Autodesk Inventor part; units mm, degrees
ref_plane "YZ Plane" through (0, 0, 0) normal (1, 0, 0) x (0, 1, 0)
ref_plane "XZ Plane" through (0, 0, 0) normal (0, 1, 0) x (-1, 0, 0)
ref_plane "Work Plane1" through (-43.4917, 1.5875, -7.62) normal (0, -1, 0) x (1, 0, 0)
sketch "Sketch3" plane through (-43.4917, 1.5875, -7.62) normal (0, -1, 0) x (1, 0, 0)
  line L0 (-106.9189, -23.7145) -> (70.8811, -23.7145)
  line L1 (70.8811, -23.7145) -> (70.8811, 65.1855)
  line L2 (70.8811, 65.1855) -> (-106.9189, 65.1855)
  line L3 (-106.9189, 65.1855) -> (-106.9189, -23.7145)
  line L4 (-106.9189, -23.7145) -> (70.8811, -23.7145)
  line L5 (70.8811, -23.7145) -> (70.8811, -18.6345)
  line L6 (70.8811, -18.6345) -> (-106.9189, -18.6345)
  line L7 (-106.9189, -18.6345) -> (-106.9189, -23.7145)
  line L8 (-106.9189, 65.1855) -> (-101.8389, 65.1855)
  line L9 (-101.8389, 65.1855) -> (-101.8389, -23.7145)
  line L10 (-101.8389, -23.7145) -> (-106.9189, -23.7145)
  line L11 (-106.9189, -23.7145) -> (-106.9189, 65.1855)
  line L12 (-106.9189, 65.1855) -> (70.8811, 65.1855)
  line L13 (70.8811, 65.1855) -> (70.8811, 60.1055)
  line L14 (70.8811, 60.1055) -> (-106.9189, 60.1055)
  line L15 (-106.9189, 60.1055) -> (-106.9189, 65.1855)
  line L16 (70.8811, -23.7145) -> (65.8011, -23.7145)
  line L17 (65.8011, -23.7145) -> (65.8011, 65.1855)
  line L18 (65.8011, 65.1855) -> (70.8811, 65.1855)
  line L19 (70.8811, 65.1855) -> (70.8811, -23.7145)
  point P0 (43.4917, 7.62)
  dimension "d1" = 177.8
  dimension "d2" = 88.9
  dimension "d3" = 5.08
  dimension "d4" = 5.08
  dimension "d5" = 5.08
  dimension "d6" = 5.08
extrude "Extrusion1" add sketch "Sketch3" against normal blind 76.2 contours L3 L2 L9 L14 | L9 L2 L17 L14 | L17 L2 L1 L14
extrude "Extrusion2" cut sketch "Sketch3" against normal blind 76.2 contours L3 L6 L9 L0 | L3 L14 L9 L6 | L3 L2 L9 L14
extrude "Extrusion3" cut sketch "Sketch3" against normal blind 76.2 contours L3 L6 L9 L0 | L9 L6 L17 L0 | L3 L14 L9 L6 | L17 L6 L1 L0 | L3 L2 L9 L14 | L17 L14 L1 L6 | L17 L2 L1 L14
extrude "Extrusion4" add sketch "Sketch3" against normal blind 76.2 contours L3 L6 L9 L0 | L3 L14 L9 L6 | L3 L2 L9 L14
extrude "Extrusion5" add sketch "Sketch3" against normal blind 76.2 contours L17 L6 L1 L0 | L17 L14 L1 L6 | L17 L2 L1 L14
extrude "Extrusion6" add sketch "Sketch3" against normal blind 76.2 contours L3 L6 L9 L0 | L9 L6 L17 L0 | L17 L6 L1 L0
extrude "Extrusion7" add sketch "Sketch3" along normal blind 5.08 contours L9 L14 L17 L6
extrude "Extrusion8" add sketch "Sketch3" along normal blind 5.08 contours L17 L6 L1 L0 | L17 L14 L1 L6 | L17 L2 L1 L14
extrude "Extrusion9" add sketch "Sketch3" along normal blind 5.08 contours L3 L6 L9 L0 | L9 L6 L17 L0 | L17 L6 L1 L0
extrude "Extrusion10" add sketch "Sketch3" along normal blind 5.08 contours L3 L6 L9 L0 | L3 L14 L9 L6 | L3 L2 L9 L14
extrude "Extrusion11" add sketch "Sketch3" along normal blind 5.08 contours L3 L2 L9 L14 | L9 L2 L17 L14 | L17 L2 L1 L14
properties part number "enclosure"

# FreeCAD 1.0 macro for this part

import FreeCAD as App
import Part
import Sketcher

V = App.Vector
Q = App.Units.Quantity


def add_polygon(sketch, points):
    """Adds a closed chain of lines whose ends are joined by coincident constraints."""
    first, n = sketch.GeometryCount, len(points)
    for a, b in zip(points, points[1:] + points[:1]):
        sketch.addGeometry(Part.LineSegment(App.Vector(*a, 0), App.Vector(*b, 0)), False)
    for i in range(n):
        sketch.addConstraint(Sketcher.Constraint("Coincident", first + i, 2, first + (i + 1) % n, 1))

doc = App.newDocument("Part")
body = doc.addObject("PartDesign::Body", "Body")
body.AllowCompound = True

# Sketch on XZ plane
sketch1 = body.newObject("Sketcher::SketchObject", "Sketch")
sketch1.AttachmentSupport = (doc.getObject("XZ_Plane"), [""])
sketch1.MapMode = "FlatFace"
sketch1.AttachmentOffset = App.Placement(V(0, 0, -0.0625 * 25.4), App.Rotation())
add_polygon(sketch1, [(-150, 58), (-150, 52), (27, 52), (27, 58)])  # lines 0-3
sketch1.addConstraint([
    Sketcher.Constraint("Vertical", 0),
    Sketcher.Constraint("Horizontal", 1),
    Sketcher.Constraint("Vertical", 2),
    Sketcher.Constraint("Horizontal", 3),
    Sketcher.Constraint("DistanceX", 1, 1, 1, 2, Q("7 in")),
    Sketcher.Constraint("DistanceY", 0, 2, 0, 1, Q("0.2 in")),
    Sketcher.Constraint("DistanceX", 0, 2, -1, 1, Q("150.4106 mm")),
    Sketcher.Constraint("DistanceY", -1, 1, 0, 2, Q("52.4855 mm")),
])
pad1 = body.newObject("PartDesign::Pad", "Pad")
pad1.Profile = sketch1
pad1.Length = Q("3 in")
pad1.Reversed = True

# Sketch on XZ plane
sketch2 = body.newObject("Sketcher::SketchObject", "Sketch001")
sketch2.AttachmentSupport = (doc.getObject("XZ_Plane"), [""])
sketch2.MapMode = "FlatFace"
sketch2.AttachmentOffset = App.Placement(V(0, 0, -0.0625 * 25.4), App.Rotation())
add_polygon(sketch2, [(-150, -31), (-145, -31), (-145, 58), (-150, 58)])  # lines 0-3
sketch2.addConstraint([
    Sketcher.Constraint("Horizontal", 0),
    Sketcher.Constraint("Vertical", 1),
    Sketcher.Constraint("Horizontal", 2),
    Sketcher.Constraint("Vertical", 3),
    Sketcher.Constraint("DistanceX", 0, 1, 0, 2, Q("0.2 in")),
    Sketcher.Constraint("DistanceY", 1, 1, 1, 2, Q("3.5 in")),
    Sketcher.Constraint("DistanceX", 0, 2, -1, 1, Q("145.3306 mm")),
    Sketcher.Constraint("DistanceY", 0, 2, -1, 1, Q("31.3345 mm")),
])
pocket1 = body.newObject("PartDesign::Pocket", "Pocket")
pocket1.Profile = sketch2
pocket1.Length = Q("3 in")

# Sketch on XZ plane
sketch3 = body.newObject("Sketcher::SketchObject", "Sketch002")
sketch3.AttachmentSupport = (doc.getObject("XZ_Plane"), [""])
sketch3.MapMode = "FlatFace"
sketch3.AttachmentOffset = App.Placement(V(0, 0, -0.0625 * 25.4), App.Rotation())
add_polygon(sketch3, [(-150, -31), (27, -31), (27, 58), (22, 58), (22, -26), (-145, -26), (-145, 58), (-150, 58)])  # lines 0-7
sketch3.addConstraint([
    Sketcher.Constraint("Horizontal", 0),
    Sketcher.Constraint("Vertical", 1),
    Sketcher.Constraint("Horizontal", 2),
    Sketcher.Constraint("Vertical", 3),
    Sketcher.Constraint("Horizontal", 4),
    Sketcher.Constraint("Vertical", 5),
    Sketcher.Constraint("Horizontal", 6),
    Sketcher.Constraint("Vertical", 7),
    Sketcher.Constraint("Horizontal", 2, 2, 5, 2),
    Sketcher.Constraint("Equal", 2, 6),
    Sketcher.Constraint("DistanceX", 0, 1, 0, 2, Q("7 in")),
    Sketcher.Constraint("DistanceX", 2, 2, 2, 1, Q("0.2 in")),
    Sketcher.Constraint("DistanceY", 1, 1, 1, 2, Q("3.5 in")),
    Sketcher.Constraint("DistanceY", 0, 2, 3, 2, Q("0.2 in")),
    Sketcher.Constraint("DistanceX", -1, 1, 0, 2, Q("27.3894 mm")),
    Sketcher.Constraint("DistanceY", 0, 2, -1, 1, Q("31.3345 mm")),
])
pocket2 = body.newObject("PartDesign::Pocket", "Pocket001")
pocket2.Profile = sketch3
pocket2.Length = Q("3 in")

# Sketch on XZ plane
sketch4 = body.newObject("Sketcher::SketchObject", "Sketch003")
sketch4.AttachmentSupport = (doc.getObject("XZ_Plane"), [""])
sketch4.MapMode = "FlatFace"
sketch4.AttachmentOffset = App.Placement(V(0, 0, -0.0625 * 25.4), App.Rotation())
add_polygon(sketch4, [(-150, -31), (-145, -31), (-145, 58), (-150, 58)])  # lines 0-3
sketch4.addConstraint([
    Sketcher.Constraint("Horizontal", 0),
    Sketcher.Constraint("Vertical", 1),
    Sketcher.Constraint("Horizontal", 2),
    Sketcher.Constraint("Vertical", 3),
    Sketcher.Constraint("DistanceX", 0, 1, 0, 2, Q("0.2 in")),
    Sketcher.Constraint("DistanceY", 1, 1, 1, 2, Q("3.5 in")),
    Sketcher.Constraint("DistanceX", 0, 2, -1, 1, Q("145.3306 mm")),
    Sketcher.Constraint("DistanceY", 0, 2, -1, 1, Q("31.3345 mm")),
])
pad2 = body.newObject("PartDesign::Pad", "Pad001")
pad2.Profile = sketch4
pad2.Length = Q("3 in")
pad2.Reversed = True

# Sketch on XZ plane
sketch5 = body.newObject("Sketcher::SketchObject", "Sketch004")
sketch5.AttachmentSupport = (doc.getObject("XZ_Plane"), [""])
sketch5.MapMode = "FlatFace"
sketch5.AttachmentOffset = App.Placement(V(0, 0, -0.0625 * 25.4), App.Rotation())
add_polygon(sketch5, [(22, -31), (27, -31), (27, 58), (22, 58)])  # lines 0-3
sketch5.addConstraint([
    Sketcher.Constraint("Horizontal", 0),
    Sketcher.Constraint("Vertical", 1),
    Sketcher.Constraint("Horizontal", 2),
    Sketcher.Constraint("Vertical", 3),
    Sketcher.Constraint("DistanceX", 0, 1, 0, 2, Q("0.2 in")),
    Sketcher.Constraint("DistanceY", 1, 1, 1, 2, Q("3.5 in")),
    Sketcher.Constraint("DistanceX", -1, 1, 0, 2, Q("27.3894 mm")),
    Sketcher.Constraint("DistanceY", 0, 2, -1, 1, Q("31.3345 mm")),
])
pad3 = body.newObject("PartDesign::Pad", "Pad002")
pad3.Profile = sketch5
pad3.Length = Q("3 in")
pad3.Reversed = True

# Sketch on XZ plane
sketch6 = body.newObject("Sketcher::SketchObject", "Sketch005")
sketch6.AttachmentSupport = (doc.getObject("XZ_Plane"), [""])
sketch6.MapMode = "FlatFace"
sketch6.AttachmentOffset = App.Placement(V(0, 0, -0.0625 * 25.4), App.Rotation())
add_polygon(sketch6, [(-150, -26), (-150, -31), (27, -31), (27, -26)])  # lines 0-3
sketch6.addConstraint([
    Sketcher.Constraint("Vertical", 0),
    Sketcher.Constraint("Horizontal", 1),
    Sketcher.Constraint("Vertical", 2),
    Sketcher.Constraint("Horizontal", 3),
    Sketcher.Constraint("DistanceX", 1, 1, 1, 2, Q("7 in")),
    Sketcher.Constraint("DistanceY", 0, 2, 0, 1, Q("0.2 in")),
    Sketcher.Constraint("DistanceX", 0, 2, -1, 1, Q("150.4106 mm")),
    Sketcher.Constraint("DistanceY", 0, 2, -1, 1, Q("31.3345 mm")),
])
pad4 = body.newObject("PartDesign::Pad", "Pad003")
pad4.Profile = sketch6
pad4.Length = Q("3 in")
pad4.Reversed = True

# Sketch on XZ plane
sketch7 = body.newObject("Sketcher::SketchObject", "Sketch006")
sketch7.AttachmentSupport = (doc.getObject("XZ_Plane"), [""])
sketch7.MapMode = "FlatFace"
sketch7.AttachmentOffset = App.Placement(V(0, 0, -0.0625 * 25.4), App.Rotation())
add_polygon(sketch7, [(-145, 52), (-145, -26), (22, -26), (22, 52)])  # lines 0-3
sketch7.addConstraint([
    Sketcher.Constraint("Vertical", 0),
    Sketcher.Constraint("Horizontal", 1),
    Sketcher.Constraint("Vertical", 2),
    Sketcher.Constraint("Horizontal", 3),
    Sketcher.Constraint("DistanceX", 1, 1, 1, 2, Q("6.6 in")),
    Sketcher.Constraint("DistanceY", 0, 2, 0, 1, Q("3.1 in")),
    Sketcher.Constraint("DistanceX", 0, 2, -1, 1, Q("145.3306 mm")),
    Sketcher.Constraint("DistanceY", 0, 2, -1, 1, Q("26.2545 mm")),
])
pad5 = body.newObject("PartDesign::Pad", "Pad004")
pad5.Profile = sketch7
pad5.Length = Q("0.2 in")

# Sketch on XZ plane
sketch8 = body.newObject("Sketcher::SketchObject", "Sketch007")
sketch8.AttachmentSupport = (doc.getObject("XZ_Plane"), [""])
sketch8.MapMode = "FlatFace"
sketch8.AttachmentOffset = App.Placement(V(0, 0, -0.0625 * 25.4), App.Rotation())
add_polygon(sketch8, [(22, -31), (27, -31), (27, 58), (22, 58)])  # lines 0-3
sketch8.addConstraint([
    Sketcher.Constraint("Horizontal", 0),
    Sketcher.Constraint("Vertical", 1),
    Sketcher.Constraint("Horizontal", 2),
    Sketcher.Constraint("Vertical", 3),
    Sketcher.Constraint("DistanceX", 0, 1, 0, 2, Q("0.2 in")),
    Sketcher.Constraint("DistanceY", 1, 1, 1, 2, Q("3.5 in")),
    Sketcher.Constraint("DistanceX", -1, 1, 0, 2, Q("27.3894 mm")),
    Sketcher.Constraint("DistanceY", 0, 2, -1, 1, Q("31.3345 mm")),
])
pad6 = body.newObject("PartDesign::Pad", "Pad005")
pad6.Profile = sketch8
pad6.Length = Q("0.2 in")

# Sketch on XZ plane
sketch9 = body.newObject("Sketcher::SketchObject", "Sketch008")
sketch9.AttachmentSupport = (doc.getObject("XZ_Plane"), [""])
sketch9.MapMode = "FlatFace"
sketch9.AttachmentOffset = App.Placement(V(0, 0, -0.0625 * 25.4), App.Rotation())
add_polygon(sketch9, [(-150, -26), (-150, -31), (27, -31), (27, -26)])  # lines 0-3
sketch9.addConstraint([
    Sketcher.Constraint("Vertical", 0),
    Sketcher.Constraint("Horizontal", 1),
    Sketcher.Constraint("Vertical", 2),
    Sketcher.Constraint("Horizontal", 3),
    Sketcher.Constraint("DistanceX", 1, 1, 1, 2, Q("7 in")),
    Sketcher.Constraint("DistanceY", 0, 2, 0, 1, Q("0.2 in")),
    Sketcher.Constraint("DistanceX", 0, 2, -1, 1, Q("150.4106 mm")),
    Sketcher.Constraint("DistanceY", 0, 2, -1, 1, Q("31.3345 mm")),
])
pad7 = body.newObject("PartDesign::Pad", "Pad006")
pad7.Profile = sketch9
pad7.Length = Q("0.2 in")

# Sketch on XZ plane
sketch10 = body.newObject("Sketcher::SketchObject", "Sketch009")
sketch10.AttachmentSupport = (doc.getObject("XZ_Plane"), [""])
sketch10.MapMode = "FlatFace"
sketch10.AttachmentOffset = App.Placement(V(0, 0, -0.0625 * 25.4), App.Rotation())
add_polygon(sketch10, [(-150, -31), (-145, -31), (-145, 58), (-150, 58)])  # lines 0-3
sketch10.addConstraint([
    Sketcher.Constraint("Horizontal", 0),
    Sketcher.Constraint("Vertical", 1),
    Sketcher.Constraint("Horizontal", 2),
    Sketcher.Constraint("Vertical", 3),
    Sketcher.Constraint("DistanceX", 0, 1, 0, 2, Q("0.2 in")),
    Sketcher.Constraint("DistanceY", 1, 1, 1, 2, Q("3.5 in")),
    Sketcher.Constraint("DistanceX", 0, 2, -1, 1, Q("145.3306 mm")),
    Sketcher.Constraint("DistanceY", 0, 2, -1, 1, Q("31.3345 mm")),
])
pad8 = body.newObject("PartDesign::Pad", "Pad007")
pad8.Profile = sketch10
pad8.Length = Q("0.2 in")

# Sketch on XZ plane
sketch11 = body.newObject("Sketcher::SketchObject", "Sketch010")
sketch11.AttachmentSupport = (doc.getObject("XZ_Plane"), [""])
sketch11.MapMode = "FlatFace"
sketch11.AttachmentOffset = App.Placement(V(0, 0, -0.0625 * 25.4), App.Rotation())
add_polygon(sketch11, [(-150, 58), (-150, 52), (27, 52), (27, 58)])  # lines 0-3
sketch11.addConstraint([
    Sketcher.Constraint("Vertical", 0),
    Sketcher.Constraint("Horizontal", 1),
    Sketcher.Constraint("Vertical", 2),
    Sketcher.Constraint("Horizontal", 3),
    Sketcher.Constraint("DistanceX", 1, 1, 1, 2, Q("7 in")),
    Sketcher.Constraint("DistanceY", 0, 2, 0, 1, Q("0.2 in")),
    Sketcher.Constraint("DistanceX", 0, 2, -1, 1, Q("150.4106 mm")),
    Sketcher.Constraint("DistanceY", -1, 1, 0, 2, Q("52.4855 mm")),
])
pad9 = body.newObject("PartDesign::Pad", "Pad008")
pad9.Profile = sketch11
pad9.Length = Q("0.2 in")

doc.recompute()
